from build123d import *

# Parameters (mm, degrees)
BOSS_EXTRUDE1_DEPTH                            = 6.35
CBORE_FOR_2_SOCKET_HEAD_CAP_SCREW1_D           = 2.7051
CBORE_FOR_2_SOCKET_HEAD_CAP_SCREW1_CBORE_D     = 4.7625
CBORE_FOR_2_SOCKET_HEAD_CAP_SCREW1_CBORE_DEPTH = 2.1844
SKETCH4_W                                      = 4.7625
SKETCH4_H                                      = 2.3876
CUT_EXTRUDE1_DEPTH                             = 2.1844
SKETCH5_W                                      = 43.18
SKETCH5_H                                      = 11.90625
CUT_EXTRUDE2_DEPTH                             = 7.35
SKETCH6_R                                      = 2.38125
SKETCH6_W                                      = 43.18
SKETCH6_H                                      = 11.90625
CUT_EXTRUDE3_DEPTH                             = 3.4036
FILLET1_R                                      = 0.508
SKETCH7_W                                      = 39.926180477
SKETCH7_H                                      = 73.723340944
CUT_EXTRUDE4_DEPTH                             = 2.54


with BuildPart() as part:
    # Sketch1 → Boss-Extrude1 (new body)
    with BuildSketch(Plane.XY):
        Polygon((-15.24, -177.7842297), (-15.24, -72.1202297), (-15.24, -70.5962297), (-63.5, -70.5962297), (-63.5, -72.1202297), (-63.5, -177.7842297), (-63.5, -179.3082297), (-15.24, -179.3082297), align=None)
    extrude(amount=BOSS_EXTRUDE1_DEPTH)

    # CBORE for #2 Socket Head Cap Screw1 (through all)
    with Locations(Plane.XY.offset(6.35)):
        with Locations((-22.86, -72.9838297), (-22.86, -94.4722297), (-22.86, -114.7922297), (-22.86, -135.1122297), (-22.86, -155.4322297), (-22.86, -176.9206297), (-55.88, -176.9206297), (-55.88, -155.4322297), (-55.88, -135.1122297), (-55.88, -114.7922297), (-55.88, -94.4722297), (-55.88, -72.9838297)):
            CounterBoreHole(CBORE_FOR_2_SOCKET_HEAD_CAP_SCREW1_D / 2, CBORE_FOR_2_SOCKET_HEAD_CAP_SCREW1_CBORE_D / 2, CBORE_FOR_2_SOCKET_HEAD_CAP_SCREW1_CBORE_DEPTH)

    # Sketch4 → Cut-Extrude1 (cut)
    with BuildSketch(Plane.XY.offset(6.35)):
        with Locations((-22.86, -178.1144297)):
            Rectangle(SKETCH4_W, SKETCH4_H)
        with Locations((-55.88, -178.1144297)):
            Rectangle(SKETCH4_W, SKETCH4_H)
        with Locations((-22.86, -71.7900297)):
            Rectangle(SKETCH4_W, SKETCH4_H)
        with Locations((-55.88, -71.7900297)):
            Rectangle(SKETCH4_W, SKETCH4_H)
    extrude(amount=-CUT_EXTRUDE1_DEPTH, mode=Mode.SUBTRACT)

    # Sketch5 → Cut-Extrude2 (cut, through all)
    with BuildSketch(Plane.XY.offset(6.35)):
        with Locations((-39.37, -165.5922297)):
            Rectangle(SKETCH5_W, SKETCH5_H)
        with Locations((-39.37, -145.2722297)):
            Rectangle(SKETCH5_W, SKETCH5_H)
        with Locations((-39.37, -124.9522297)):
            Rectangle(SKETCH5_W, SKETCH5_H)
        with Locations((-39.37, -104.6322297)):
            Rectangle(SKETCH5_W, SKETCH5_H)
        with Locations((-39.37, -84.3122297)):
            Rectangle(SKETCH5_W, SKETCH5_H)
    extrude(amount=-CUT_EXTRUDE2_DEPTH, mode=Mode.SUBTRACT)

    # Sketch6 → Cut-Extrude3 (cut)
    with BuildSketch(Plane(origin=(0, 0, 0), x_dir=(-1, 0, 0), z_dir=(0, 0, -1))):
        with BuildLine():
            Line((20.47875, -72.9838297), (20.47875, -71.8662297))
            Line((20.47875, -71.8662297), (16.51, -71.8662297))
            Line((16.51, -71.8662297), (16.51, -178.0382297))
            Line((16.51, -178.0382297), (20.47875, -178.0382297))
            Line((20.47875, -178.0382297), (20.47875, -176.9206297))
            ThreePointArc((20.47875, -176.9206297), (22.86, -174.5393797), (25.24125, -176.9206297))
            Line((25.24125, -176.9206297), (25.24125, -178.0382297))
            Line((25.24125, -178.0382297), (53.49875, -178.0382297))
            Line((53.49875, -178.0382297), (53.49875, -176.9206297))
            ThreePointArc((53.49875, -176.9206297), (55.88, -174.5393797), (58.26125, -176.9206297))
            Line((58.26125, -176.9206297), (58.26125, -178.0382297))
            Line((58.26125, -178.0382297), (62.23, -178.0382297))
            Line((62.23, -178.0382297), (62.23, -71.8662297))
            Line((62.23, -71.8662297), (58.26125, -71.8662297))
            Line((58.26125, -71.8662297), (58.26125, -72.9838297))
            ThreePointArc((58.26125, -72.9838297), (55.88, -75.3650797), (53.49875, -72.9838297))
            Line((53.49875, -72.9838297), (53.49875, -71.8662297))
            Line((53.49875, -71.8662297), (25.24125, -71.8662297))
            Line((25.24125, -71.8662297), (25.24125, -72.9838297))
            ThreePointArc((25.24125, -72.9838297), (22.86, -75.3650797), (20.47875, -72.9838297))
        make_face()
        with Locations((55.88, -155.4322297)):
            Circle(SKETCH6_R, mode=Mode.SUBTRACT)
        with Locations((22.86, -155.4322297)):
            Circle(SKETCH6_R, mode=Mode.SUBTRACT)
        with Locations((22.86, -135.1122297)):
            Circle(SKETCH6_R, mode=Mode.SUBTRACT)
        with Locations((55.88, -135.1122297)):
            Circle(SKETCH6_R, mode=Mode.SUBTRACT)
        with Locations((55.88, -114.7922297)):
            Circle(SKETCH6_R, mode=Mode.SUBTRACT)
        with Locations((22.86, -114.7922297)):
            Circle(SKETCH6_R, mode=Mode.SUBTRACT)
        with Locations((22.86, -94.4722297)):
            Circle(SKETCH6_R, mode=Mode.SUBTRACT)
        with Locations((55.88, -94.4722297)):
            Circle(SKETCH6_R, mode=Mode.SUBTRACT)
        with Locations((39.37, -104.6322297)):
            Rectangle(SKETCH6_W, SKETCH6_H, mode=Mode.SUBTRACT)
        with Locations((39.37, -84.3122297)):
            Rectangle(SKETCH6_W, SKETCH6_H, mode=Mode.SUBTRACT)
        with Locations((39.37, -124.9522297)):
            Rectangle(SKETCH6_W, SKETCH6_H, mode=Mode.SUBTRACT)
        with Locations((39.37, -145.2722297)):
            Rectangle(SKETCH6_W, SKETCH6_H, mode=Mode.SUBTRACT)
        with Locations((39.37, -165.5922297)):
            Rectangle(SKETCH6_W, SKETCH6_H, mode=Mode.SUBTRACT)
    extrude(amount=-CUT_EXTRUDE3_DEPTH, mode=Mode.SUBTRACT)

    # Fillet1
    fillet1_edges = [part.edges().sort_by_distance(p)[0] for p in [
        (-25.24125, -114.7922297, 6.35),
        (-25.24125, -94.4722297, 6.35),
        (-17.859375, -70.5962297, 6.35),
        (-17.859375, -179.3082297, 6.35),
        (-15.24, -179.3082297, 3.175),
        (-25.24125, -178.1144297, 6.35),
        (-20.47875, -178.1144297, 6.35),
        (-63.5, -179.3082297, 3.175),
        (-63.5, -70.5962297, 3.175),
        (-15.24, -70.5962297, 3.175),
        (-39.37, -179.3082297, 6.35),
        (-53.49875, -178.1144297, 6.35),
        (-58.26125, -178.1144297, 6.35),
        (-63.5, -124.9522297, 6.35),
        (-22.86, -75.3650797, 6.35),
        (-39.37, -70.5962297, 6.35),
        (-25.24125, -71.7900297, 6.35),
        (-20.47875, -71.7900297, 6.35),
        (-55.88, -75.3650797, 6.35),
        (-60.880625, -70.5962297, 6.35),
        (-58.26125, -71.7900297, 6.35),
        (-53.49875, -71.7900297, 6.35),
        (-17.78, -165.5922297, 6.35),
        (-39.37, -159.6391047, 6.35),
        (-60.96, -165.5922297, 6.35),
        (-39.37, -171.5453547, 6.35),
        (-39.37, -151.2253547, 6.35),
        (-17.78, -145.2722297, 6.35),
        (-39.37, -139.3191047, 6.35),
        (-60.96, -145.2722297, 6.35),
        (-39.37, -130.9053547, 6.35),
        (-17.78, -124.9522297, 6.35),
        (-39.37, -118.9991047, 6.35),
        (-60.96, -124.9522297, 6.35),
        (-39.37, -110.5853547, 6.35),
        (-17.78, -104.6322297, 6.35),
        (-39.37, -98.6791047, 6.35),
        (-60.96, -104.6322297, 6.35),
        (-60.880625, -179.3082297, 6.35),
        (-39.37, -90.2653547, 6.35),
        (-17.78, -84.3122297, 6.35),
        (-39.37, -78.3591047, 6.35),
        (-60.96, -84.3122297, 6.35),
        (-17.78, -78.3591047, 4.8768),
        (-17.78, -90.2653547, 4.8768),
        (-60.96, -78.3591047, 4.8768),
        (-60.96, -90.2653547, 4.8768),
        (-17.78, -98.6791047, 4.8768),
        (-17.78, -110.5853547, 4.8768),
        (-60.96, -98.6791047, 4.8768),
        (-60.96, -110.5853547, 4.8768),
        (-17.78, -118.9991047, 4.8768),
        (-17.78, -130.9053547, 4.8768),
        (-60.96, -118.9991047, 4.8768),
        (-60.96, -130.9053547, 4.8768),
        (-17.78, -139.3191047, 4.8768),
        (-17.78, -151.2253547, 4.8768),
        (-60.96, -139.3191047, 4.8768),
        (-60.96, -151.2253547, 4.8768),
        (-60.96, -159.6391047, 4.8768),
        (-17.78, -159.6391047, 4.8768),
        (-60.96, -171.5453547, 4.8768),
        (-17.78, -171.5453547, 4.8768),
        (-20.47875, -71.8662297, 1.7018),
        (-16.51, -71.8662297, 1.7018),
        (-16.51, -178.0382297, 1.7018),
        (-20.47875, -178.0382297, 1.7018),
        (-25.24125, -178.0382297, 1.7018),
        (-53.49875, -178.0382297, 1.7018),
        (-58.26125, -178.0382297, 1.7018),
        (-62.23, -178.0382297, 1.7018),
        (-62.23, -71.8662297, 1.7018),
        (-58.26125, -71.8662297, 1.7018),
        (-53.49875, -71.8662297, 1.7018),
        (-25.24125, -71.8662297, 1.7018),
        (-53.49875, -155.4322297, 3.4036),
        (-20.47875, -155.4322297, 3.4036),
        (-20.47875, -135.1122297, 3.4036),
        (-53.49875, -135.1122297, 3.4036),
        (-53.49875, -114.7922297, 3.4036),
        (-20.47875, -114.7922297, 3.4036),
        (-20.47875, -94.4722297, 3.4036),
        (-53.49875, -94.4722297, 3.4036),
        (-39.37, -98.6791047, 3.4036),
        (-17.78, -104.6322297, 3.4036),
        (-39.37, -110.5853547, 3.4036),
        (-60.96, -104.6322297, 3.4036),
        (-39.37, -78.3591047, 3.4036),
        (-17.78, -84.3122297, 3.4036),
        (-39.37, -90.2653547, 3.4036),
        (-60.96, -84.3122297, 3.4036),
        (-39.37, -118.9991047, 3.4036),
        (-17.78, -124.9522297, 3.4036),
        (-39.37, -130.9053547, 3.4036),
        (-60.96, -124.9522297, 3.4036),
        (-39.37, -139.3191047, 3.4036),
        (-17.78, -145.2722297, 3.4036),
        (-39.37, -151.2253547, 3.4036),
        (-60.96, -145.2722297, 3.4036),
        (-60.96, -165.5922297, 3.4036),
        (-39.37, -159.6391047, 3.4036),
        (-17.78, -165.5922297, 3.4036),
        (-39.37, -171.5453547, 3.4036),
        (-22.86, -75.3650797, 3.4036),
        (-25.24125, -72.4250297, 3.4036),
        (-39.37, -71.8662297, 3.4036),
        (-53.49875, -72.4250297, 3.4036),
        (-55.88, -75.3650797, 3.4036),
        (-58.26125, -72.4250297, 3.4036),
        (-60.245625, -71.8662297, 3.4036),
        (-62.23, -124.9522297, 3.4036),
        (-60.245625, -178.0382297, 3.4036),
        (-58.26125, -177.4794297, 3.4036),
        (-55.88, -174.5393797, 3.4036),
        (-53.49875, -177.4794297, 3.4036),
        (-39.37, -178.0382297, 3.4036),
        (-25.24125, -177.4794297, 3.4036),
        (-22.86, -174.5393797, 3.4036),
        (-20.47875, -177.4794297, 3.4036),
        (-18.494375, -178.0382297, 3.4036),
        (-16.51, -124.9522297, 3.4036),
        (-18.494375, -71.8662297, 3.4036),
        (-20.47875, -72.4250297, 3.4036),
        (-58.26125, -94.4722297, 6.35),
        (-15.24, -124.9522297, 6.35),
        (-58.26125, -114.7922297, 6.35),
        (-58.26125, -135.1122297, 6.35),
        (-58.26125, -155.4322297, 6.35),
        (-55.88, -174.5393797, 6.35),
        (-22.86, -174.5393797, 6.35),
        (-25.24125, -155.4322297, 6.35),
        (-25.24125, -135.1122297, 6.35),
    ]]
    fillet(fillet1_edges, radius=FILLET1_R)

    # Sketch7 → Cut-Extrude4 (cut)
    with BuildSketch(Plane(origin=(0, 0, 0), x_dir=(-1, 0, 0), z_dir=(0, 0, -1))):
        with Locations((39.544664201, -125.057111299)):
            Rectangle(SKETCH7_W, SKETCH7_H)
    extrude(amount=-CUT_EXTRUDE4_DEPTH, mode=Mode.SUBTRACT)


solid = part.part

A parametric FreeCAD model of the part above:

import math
import FreeCAD as App
import Part
import Sketcher

V = App.Vector
Q = App.Units.Quantity


def edges_at(feature, points):
    """Names of the edges that pass closest to the given points."""
    edges = feature.Shape.Edges
    near = lambda p: min(range(len(edges)), key=lambda i: edges[i].distToShape(Part.Vertex(*p))[0])
    return sorted({f"Edge{near(p) + 1}" for p in points})

doc = App.newDocument("Part")
body = doc.addObject("PartDesign::Body", "Body")

# Sketch on XY plane
sketch1 = body.newObject("Sketcher::SketchObject", "Sketch")
sketch1.AttachmentSupport = (doc.getObject("XY_Plane"), [""])
sketch1.MapMode = "FlatFace"
sketch1.addGeometry([
    Part.LineSegment(V(-15, -71, 0), V(-64, -71, 0)),
    Part.LineSegment(V(-64, -71, 0), V(-64, -179, 0)),
    Part.LineSegment(V(-64, -179, 0), V(-15, -179, 0)),
    Part.LineSegment(V(-15, -179, 0), V(-15, -71, 0)),
], False)
sketch1.addConstraint([
    Sketcher.Constraint("Coincident", 0, 2, 1, 1),
    Sketcher.Constraint("Coincident", 1, 2, 2, 1),
    Sketcher.Constraint("Coincident", 2, 2, 3, 1),
    Sketcher.Constraint("Coincident", 3, 2, 0, 1),
    Sketcher.Constraint("Horizontal", 0),
    Sketcher.Constraint("Vertical", 1),
    Sketcher.Constraint("Horizontal", 2),
    Sketcher.Constraint("Vertical", 3),
    Sketcher.Constraint("DistanceX", 0, 2, 0, 1, Q("1.9 in")),
    Sketcher.Constraint("DistanceY", 1, 2, 1, 1, Q("4.28 in")),
    Sketcher.Constraint("DistanceX", 0, 2, -1, 1, Q("2.5 in")),
    Sketcher.Constraint("DistanceY", 0, 2, -1, 1, 70.59623),
])
pad1 = body.newObject("PartDesign::Pad", "Pad")
pad1.Profile = sketch1
pad1.Length = Q("0.25 in")

# Sketch on XY plane
sketch2 = body.newObject("Sketcher::SketchObject", "Sketch001")
sketch2.AttachmentSupport = (doc.getObject("XY_Plane"), [""])
sketch2.MapMode = "FlatFace"
sketch2.AttachmentOffset = App.Placement(V(0, 0, 0.25 * 25.4), App.Rotation())
sketch2.addGeometry([
    Part.Circle(V(-22.9, -73, 0), V(0, 0, 1), 1.4),  # 0
    Part.Circle(V(-22.9, -94.5, 0), V(0, 0, 1), 1.4),  # 1
    Part.Circle(V(-22.9, -114.8, 0), V(0, 0, 1), 1.4),  # 2
    Part.Circle(V(-22.9, -135.1, 0), V(0, 0, 1), 1.4),  # 3
    Part.Circle(V(-22.9, -155.4, 0), V(0, 0, 1), 1.4),  # 4
    Part.Circle(V(-22.9, -176.9, 0), V(0, 0, 1), 1.4),  # 5
    Part.Circle(V(-55.9, -176.9, 0), V(0, 0, 1), 1.4),  # 6
    Part.Circle(V(-55.9, -155.4, 0), V(0, 0, 1), 1.4),  # 7
    Part.Circle(V(-55.9, -135.1, 0), V(0, 0, 1), 1.4),  # 8
    Part.Circle(V(-55.9, -114.8, 0), V(0, 0, 1), 1.4),  # 9
    Part.Circle(V(-55.9, -94.5, 0), V(0, 0, 1), 1.4),  # 10
    Part.Circle(V(-55.9, -73, 0), V(0, 0, 1), 1.4),  # 11
], False)
sketch2.addConstraint([
    Sketcher.Constraint("Equal", 0, 1),
    Sketcher.Constraint("Equal", 1, 2),
    Sketcher.Constraint("Equal", 2, 3),
    Sketcher.Constraint("Equal", 3, 4),
    Sketcher.Constraint("Equal", 4, 5),
    Sketcher.Constraint("Equal", 5, 6),
    Sketcher.Constraint("Equal", 6, 7),
    Sketcher.Constraint("Equal", 7, 8),
    Sketcher.Constraint("Equal", 8, 9),
    Sketcher.Constraint("Equal", 9, 10),
    Sketcher.Constraint("Equal", 10, 11),
    Sketcher.Constraint("Horizontal", 5, 3, 6, 3),
    Sketcher.Constraint("Horizontal", 4, 3, 7, 3),
    Sketcher.Constraint("Horizontal", 3, 3, 8, 3),
    Sketcher.Constraint("Horizontal", 2, 3, 9, 3),
    Sketcher.Constraint("Horizontal", 1, 3, 10, 3),
    Sketcher.Constraint("Horizontal", 0, 3, 11, 3),
    Sketcher.Constraint("Vertical", 0, 3, 1, 3),
    Sketcher.Constraint("Vertical", 1, 3, 2, 3),
    Sketcher.Constraint("Vertical", 2, 3, 3, 3),
    Sketcher.Constraint("Vertical", 3, 3, 4, 3),
    Sketcher.Constraint("Vertical", 4, 3, 5, 3),
    Sketcher.Constraint("Vertical", 6, 3, 7, 3),
    Sketcher.Constraint("Vertical", 7, 3, 8, 3),
    Sketcher.Constraint("Vertical", 8, 3, 9, 3),
    Sketcher.Constraint("Vertical", 9, 3, 10, 3),
    Sketcher.Constraint("Vertical", 10, 3, 11, 3),
    Sketcher.Constraint("Diameter", 0, Q("0.1065 in")),
    Sketcher.Constraint("DistanceX", 0, 3, -1, 1, Q("0.9 in")),
    Sketcher.Constraint("DistanceX", 6, 3, -1, 1, Q("2.2 in")),
    Sketcher.Constraint("DistanceY", 2, 3, 1, 3, Q("0.8 in")),
    Sketcher.Constraint("DistanceY", 3, 3, 2, 3, Q("0.8 in")),
    Sketcher.Constraint("DistanceY", 4, 3, 3, 3, Q("0.8 in")),
    Sketcher.Constraint("DistanceY", 1, 3, 0, 3, Q("0.846 in")),
    Sketcher.Constraint("DistanceY", 5, 3, 4, 3, Q("0.846 in")),
    Sketcher.Constraint("DistanceY", 0, 3, -1, 1, 72.98383),
])
doc.recompute()
hole = body.newObject("PartDesign::Hole", "Hole")
hole.Profile = sketch2
hole.ThreadType = "None"
hole.Diameter = Q("0.1065 in")
hole.DepthType = "ThroughAll"
hole.HoleCutType = "Counterbore"
hole.HoleCutDiameter = Q("0.1875 in")
hole.HoleCutDepth = Q("0.086 in")

# Sketch on XY plane
sketch3 = body.newObject("Sketcher::SketchObject", "Sketch002")
sketch3.AttachmentSupport = (doc.getObject("XY_Plane"), [""])
sketch3.MapMode = "FlatFace"
sketch3.AttachmentOffset = App.Placement(V(0, 0, 0.25 * 25.4), App.Rotation())
sketch3.addGeometry([
    Part.LineSegment(V(-25.2, -176.9, 0), V(-25.2, -179.3, 0)),  # 0
    Part.LineSegment(V(-25.2, -179.3, 0), V(-20.5, -179.3, 0)),  # 1
    Part.LineSegment(V(-20.5, -179.3, 0), V(-20.5, -176.9, 0)),  # 2
    Part.LineSegment(V(-20.5, -176.9, 0), V(-25.2, -176.9, 0)),  # 3
    Part.LineSegment(V(-58.3, -176.9, 0), V(-58.3, -179.3, 0)),  # 4
    Part.LineSegment(V(-58.3, -179.3, 0), V(-53.5, -179.3, 0)),  # 5
    Part.LineSegment(V(-53.5, -179.3, 0), V(-53.5, -176.9, 0)),  # 6
    Part.LineSegment(V(-53.5, -176.9, 0), V(-58.3, -176.9, 0)),  # 7
    Part.LineSegment(V(-25.2, -70.6, 0), V(-25.2, -73, 0)),  # 8
    Part.LineSegment(V(-25.2, -73, 0), V(-20.5, -73, 0)),  # 9
    Part.LineSegment(V(-20.5, -73, 0), V(-20.5, -70.6, 0)),  # 10
    Part.LineSegment(V(-20.5, -70.6, 0), V(-25.2, -70.6, 0)),  # 11
    Part.LineSegment(V(-58.3, -70.6, 0), V(-58.3, -73, 0)),  # 12
    Part.LineSegment(V(-58.3, -73, 0), V(-53.5, -73, 0)),  # 13
    Part.LineSegment(V(-53.5, -73, 0), V(-53.5, -70.6, 0)),  # 14
    Part.LineSegment(V(-53.5, -70.6, 0), V(-58.3, -70.6, 0)),  # 15
], False)
sketch3.addConstraint([
    Sketcher.Constraint("Coincident", 0, 2, 1, 1),
    Sketcher.Constraint("Coincident", 1, 2, 2, 1),
    Sketcher.Constraint("Coincident", 2, 2, 3, 1),
    Sketcher.Constraint("Coincident", 3, 2, 0, 1),
    Sketcher.Constraint("Coincident", 4, 2, 5, 1),
    Sketcher.Constraint("Coincident", 5, 2, 6, 1),
    Sketcher.Constraint("Coincident", 6, 2, 7, 1),
    Sketcher.Constraint("Coincident", 7, 2, 4, 1),
    Sketcher.Constraint("Coincident", 8, 2, 9, 1),
    Sketcher.Constraint("Coincident", 9, 2, 10, 1),
    Sketcher.Constraint("Coincident", 10, 2, 11, 1),
    Sketcher.Constraint("Coincident", 11, 2, 8, 1),
    Sketcher.Constraint("Coincident", 12, 2, 13, 1),
    Sketcher.Constraint("Coincident", 13, 2, 14, 1),
    Sketcher.Constraint("Coincident", 14, 2, 15, 1),
    Sketcher.Constraint("Coincident", 15, 2, 12, 1),
    Sketcher.Constraint("Vertical", 0),
    Sketcher.Constraint("Horizontal", 1),
    Sketcher.Constraint("Vertical", 2),
    Sketcher.Constraint("Horizontal", 3),
    Sketcher.Constraint("Vertical", 4),
    Sketcher.Constraint("Horizontal", 5),
    Sketcher.Constraint("Vertical", 6),
    Sketcher.Constraint("Horizontal", 7),
    Sketcher.Constraint("Vertical", 8),
    Sketcher.Constraint("Horizontal", 9),
    Sketcher.Constraint("Vertical", 10),
    Sketcher.Constraint("Horizontal", 11),
    Sketcher.Constraint("Vertical", 12),
    Sketcher.Constraint("Horizontal", 13),
    Sketcher.Constraint("Vertical", 14),
    Sketcher.Constraint("Horizontal", 15),
    Sketcher.Constraint("Horizontal", 1, 2, 4, 2),
    Sketcher.Constraint("Horizontal", 3, 2, 6, 2),
    Sketcher.Constraint("Horizontal", 9, 2, 12, 2),
    Sketcher.Constraint("Horizontal", 11, 2, 14, 2),
    Sketcher.Constraint("Vertical", 3, 2, 8, 2),
    Sketcher.Constraint("Vertical", 2, 2, 9, 2),
    Sketcher.Constraint("Vertical", 7, 2, 12, 2),
    Sketcher.Constraint("Vertical", 6, 2, 13, 2),
    Sketcher.Constraint("Equal", 3, 5),
    Sketcher.Constraint("Equal", 6, 8),
    Sketcher.Constraint("DistanceX", 4, 2, 0, 2, Q("1.3 in")),
    Sketcher.Constraint("DistanceX", 1, 1, 1, 2, Q("0.1875 in")),
    Sketcher.Constraint("DistanceY", 0, 2, 0, 1, Q("0.094 in")),
    Sketcher.Constraint("DistanceY", 1, 2, 10, 2, Q("4.28 in")),
    Sketcher.Constraint("DistanceX", 0, 2, -1, 1, 25.24125),
    Sketcher.Constraint("DistanceY", 0, 2, -1, 1, 179.30823),
])
pocket1 = body.newObject("PartDesign::Pocket", "Pocket")
pocket1.Profile = sketch3
pocket1.Length = Q("0.086 in")

# Sketch on XY plane
sketch4 = body.newObject("Sketcher::SketchObject", "Sketch003")
sketch4.AttachmentSupport = (doc.getObject("XY_Plane"), [""])
sketch4.MapMode = "FlatFace"
sketch4.AttachmentOffset = App.Placement(V(0, 0, 0.25 * 25.4), App.Rotation())
sketch4.addGeometry([
    Part.LineSegment(V(-61, -160, 0), V(-61, -172, 0)),  # 0
    Part.LineSegment(V(-61, -172, 0), V(-18, -172, 0)),  # 1
    Part.LineSegment(V(-18, -172, 0), V(-18, -160, 0)),  # 2
    Part.LineSegment(V(-18, -160, 0), V(-61, -160, 0)),  # 3
    Part.LineSegment(V(-61, -139, 0), V(-61, -151, 0)),  # 4
    Part.LineSegment(V(-61, -151, 0), V(-18, -151, 0)),  # 5
    Part.LineSegment(V(-18, -151, 0), V(-18, -139, 0)),  # 6
    Part.LineSegment(V(-18, -139, 0), V(-61, -139, 0)),  # 7
    Part.LineSegment(V(-61, -119, 0), V(-61, -131, 0)),  # 8
    Part.LineSegment(V(-61, -131, 0), V(-18, -131, 0)),  # 9
    Part.LineSegment(V(-18, -131, 0), V(-18, -119, 0)),  # 10
    Part.LineSegment(V(-18, -119, 0), V(-61, -119, 0)),  # 11
    Part.LineSegment(V(-61, -99, 0), V(-61, -111, 0)),  # 12
    Part.LineSegment(V(-61, -111, 0), V(-18, -111, 0)),  # 13
    Part.LineSegment(V(-18, -111, 0), V(-18, -99, 0)),  # 14
    Part.LineSegment(V(-18, -99, 0), V(-61, -99, 0)),  # 15
    Part.LineSegment(V(-61, -78, 0), V(-61, -90, 0)),  # 16
    Part.LineSegment(V(-61, -90, 0), V(-18, -90, 0)),  # 17
    Part.LineSegment(V(-18, -90, 0), V(-18, -78, 0)),  # 18
    Part.LineSegment(V(-18, -78, 0), V(-61, -78, 0)),  # 19
], False)
sketch4.addConstraint([
    Sketcher.Constraint("Coincident", 0, 2, 1, 1),
    Sketcher.Constraint("Coincident", 1, 2, 2, 1),
    Sketcher.Constraint("Coincident", 2, 2, 3, 1),
    Sketcher.Constraint("Coincident", 3, 2, 0, 1),
    Sketcher.Constraint("Coincident", 4, 2, 5, 1),
    Sketcher.Constraint("Coincident", 5, 2, 6, 1),
    Sketcher.Constraint("Coincident", 6, 2, 7, 1),
    Sketcher.Constraint("Coincident", 7, 2, 4, 1),
    Sketcher.Constraint("Coincident", 8, 2, 9, 1),
    Sketcher.Constraint("Coincident", 9, 2, 10, 1),
    Sketcher.Constraint("Coincident", 10, 2, 11, 1),
    Sketcher.Constraint("Coincident", 11, 2, 8, 1),
    Sketcher.Constraint("Coincident", 12, 2, 13, 1),
    Sketcher.Constraint("Coincident", 13, 2, 14, 1),
    Sketcher.Constraint("Coincident", 14, 2, 15, 1),
    Sketcher.Constraint("Coincident", 15, 2, 12, 1),
    Sketcher.Constraint("Coincident", 16, 2, 17, 1),
    Sketcher.Constraint("Coincident", 17, 2, 18, 1),
    Sketcher.Constraint("Coincident", 18, 2, 19, 1),
    Sketcher.Constraint("Coincident", 19, 2, 16, 1),
    Sketcher.Constraint("Vertical", 0),
    Sketcher.Constraint("Horizontal", 1),
    Sketcher.Constraint("Vertical", 2),
    Sketcher.Constraint("Horizontal", 3),
    Sketcher.Constraint("Vertical", 4),
    Sketcher.Constraint("Horizontal", 5),
    Sketcher.Constraint("Vertical", 6),
    Sketcher.Constraint("Horizontal", 7),
    Sketcher.Constraint("Vertical", 8),
    Sketcher.Constraint("Horizontal", 9),
    Sketcher.Constraint("Vertical", 10),
    Sketcher.Constraint("Horizontal", 11),
    Sketcher.Constraint("Vertical", 12),
    Sketcher.Constraint("Horizontal", 13),
    Sketcher.Constraint("Vertical", 14),
    Sketcher.Constraint("Horizontal", 15),
    Sketcher.Constraint("Vertical", 16),
    Sketcher.Constraint("Horizontal", 17),
    Sketcher.Constraint("Vertical", 18),
    Sketcher.Constraint("Horizontal", 19),
    Sketcher.Constraint("Vertical", 3, 2, 4, 2),
    Sketcher.Constraint("Vertical", 2, 2, 5, 2),
    Sketcher.Constraint("Vertical", 7, 2, 8, 2),
    Sketcher.Constraint("Vertical", 6, 2, 9, 2),
    Sketcher.Constraint("Vertical", 11, 2, 12, 2),
    Sketcher.Constraint("Vertical", 10, 2, 13, 2),
    Sketcher.Constraint("Vertical", 15, 2, 16, 2),
    Sketcher.Constraint("Vertical", 14, 2, 17, 2),
    Sketcher.Constraint("Equal", 2, 4),
    Sketcher.Constraint("Equal", 6, 8),
    Sketcher.Constraint("Equal", 10, 12),
    Sketcher.Constraint("Equal", 14, 16),
    Sketcher.Constraint("DistanceX", 1, 1, 1, 2, Q("1.7 in")),
    Sketcher.Constraint("DistanceX", 0, 2, -1, 1, Q("2.4 in")),
    Sketcher.Constraint("DistanceY", 0, 2, 4, 2, Q("0.8 in")),
    Sketcher.Constraint("DistanceY", 4, 2, 8, 2, Q("0.8 in")),
    Sketcher.Constraint("DistanceY", 8, 2, 12, 2, Q("0.8 in")),
    Sketcher.Constraint("DistanceY", 12, 2, 16, 2, Q("0.8 in")),
    Sketcher.Constraint("DistanceY", 0, 2, 0, 1, Q("0.46875 in")),
    Sketcher.Constraint("DistanceY", 0, 2, -1, 1, 171.545355),
])
pocket2 = body.newObject("PartDesign::Pocket", "Pocket001")
pocket2.Profile = sketch4
pocket2.Type = "ThroughAll"

# Sketch on XY plane
sketch5 = body.newObject("Sketcher::SketchObject", "Sketch004")
sketch5.AttachmentSupport = (doc.getObject("XY_Plane"), [""])
sketch5.MapMode = "FlatFace"
sketch5.addGeometry([
    Part.LineSegment(V(-20.5, -73, 0), V(-20.5, -71.9, 0)),  # 0
    Part.LineSegment(V(-20.5, -71.9, 0), V(-16.5, -71.9, 0)),  # 1
    Part.LineSegment(V(-16.5, -71.9, 0), V(-16.5, -178, 0)),  # 2
    Part.LineSegment(V(-16.5, -178, 0), V(-20.5, -178, 0)),  # 3
    Part.LineSegment(V(-20.5, -178, 0), V(-20.5, -176.9, 0)),  # 4
    Part.ArcOfCircle(Part.Circle(V(-22.9, -176.9, 0), V(0, 0, 1), 2.4), math.radians(0), math.radians(180)),  # 5
    Part.LineSegment(V(-25.2, -176.9, 0), V(-25.2, -178, 0)),  # 6
    Part.LineSegment(V(-25.2, -178, 0), V(-53.5, -178, 0)),  # 7
    Part.LineSegment(V(-53.5, -178, 0), V(-53.5, -176.9, 0)),  # 8
    Part.ArcOfCircle(Part.Circle(V(-55.9, -176.9, 0), V(0, 0, 1), 2.4), math.radians(0), math.radians(180)),  # 9
    Part.LineSegment(V(-58.3, -176.9, 0), V(-58.3, -178, 0)),  # 10
    Part.LineSegment(V(-58.3, -178, 0), V(-62.2, -178, 0)),  # 11
    Part.LineSegment(V(-62.2, -178, 0), V(-62.2, -71.9, 0)),  # 12
    Part.LineSegment(V(-62.2, -71.9, 0), V(-58.3, -71.9, 0)),  # 13
    Part.LineSegment(V(-58.3, -71.9, 0), V(-58.3, -73, 0)),  # 14
    Part.ArcOfCircle(Part.Circle(V(-55.9, -73, 0), V(0, 0, 1), 2.4), math.radians(180), math.radians(360)),  # 15
    Part.LineSegment(V(-53.5, -73, 0), V(-53.5, -71.9, 0)),  # 16
    Part.LineSegment(V(-53.5, -71.9, 0), V(-25.2, -71.9, 0)),  # 17
    Part.LineSegment(V(-25.2, -71.9, 0), V(-25.2, -73, 0)),  # 18
    Part.ArcOfCircle(Part.Circle(V(-22.9, -73, 0), V(0, 0, 1), 2.4), math.radians(180), math.radians(360)),  # 19
    Part.Circle(V(-22.9, -155.4, 0), V(0, 0, 1), 2.4),  # 20
    Part.Circle(V(-22.9, -135.1, 0), V(0, 0, 1), 2.4),  # 21
    Part.LineSegment(V(-61, -171.5, 0), V(-17.8, -171.5, 0)),  # 22
    Part.LineSegment(V(-17.8, -171.5, 0), V(-17.8, -159.6, 0)),  # 23
    Part.LineSegment(V(-17.8, -159.6, 0), V(-61, -159.6, 0)),  # 24
    Part.LineSegment(V(-61, -159.6, 0), V(-61, -171.5, 0)),  # 25
    Part.Circle(V(-55.9, -155.4, 0), V(0, 0, 1), 2.4),  # 26
    Part.LineSegment(V(-61, -151.2, 0), V(-17.8, -151.2, 0)),  # 27
    Part.LineSegment(V(-17.8, -151.2, 0), V(-17.8, -139.3, 0)),  # 28
    Part.LineSegment(V(-17.8, -139.3, 0), V(-61, -139.3, 0)),  # 29
    Part.LineSegment(V(-61, -139.3, 0), V(-61, -151.2, 0)),  # 30
    Part.LineSegment(V(-61, -130.9, 0), V(-17.8, -130.9, 0)),  # 31
    Part.LineSegment(V(-17.8, -130.9, 0), V(-17.8, -119, 0)),  # 32
    Part.LineSegment(V(-17.8, -119, 0), V(-61, -119, 0)),  # 33
    Part.LineSegment(V(-61, -119, 0), V(-61, -130.9, 0)),  # 34
    Part.Circle(V(-55.9, -135.1, 0), V(0, 0, 1), 2.4),  # 35
    Part.Circle(V(-22.9, -114.8, 0), V(0, 0, 1), 2.4),  # 36
    Part.Circle(V(-22.9, -94.5, 0), V(0, 0, 1), 2.4),  # 37
    Part.LineSegment(V(-61, -110.6, 0), V(-17.8, -110.6, 0)),  # 38
    Part.LineSegment(V(-17.8, -110.6, 0), V(-17.8, -98.7, 0)),  # 39
    Part.LineSegment(V(-17.8, -98.7, 0), V(-61, -98.7, 0)),  # 40
    Part.LineSegment(V(-61, -98.7, 0), V(-61, -110.6, 0)),  # 41
    Part.Circle(V(-55.9, -114.8, 0), V(0, 0, 1), 2.4),  # 42
    Part.LineSegment(V(-61, -90.3, 0), V(-17.8, -90.3, 0)),  # 43
    Part.LineSegment(V(-17.8, -90.3, 0), V(-17.8, -78.4, 0)),  # 44
    Part.LineSegment(V(-17.8, -78.4, 0), V(-61, -78.4, 0)),  # 45
    Part.LineSegment(V(-61, -78.4, 0), V(-61, -90.3, 0)),  # 46
    Part.Circle(V(-55.9, -94.5, 0), V(0, 0, 1), 2.4),  # 47
], False)
sketch5.addConstraint([
    Sketcher.Constraint("Coincident", 0, 2, 1, 1),
    Sketcher.Constraint("Coincident", 1, 2, 2, 1),
    Sketcher.Constraint("Coincident", 2, 2, 3, 1),
    Sketcher.Constraint("Coincident", 3, 2, 4, 1),
    Sketcher.Constraint("Tangent", 4, 2, 5, 1),
    Sketcher.Constraint("Tangent", 5, 2, 6, 1),
    Sketcher.Constraint("Coincident", 6, 2, 7, 1),
    Sketcher.Constraint("Coincident", 7, 2, 8, 1),
    Sketcher.Constraint("Tangent", 8, 2, 9, 1),
    Sketcher.Constraint("Tangent", 9, 2, 10, 1),
    Sketcher.Constraint("Coincident", 10, 2, 11, 1),
    Sketcher.Constraint("Coincident", 11, 2, 12, 1),
    Sketcher.Constraint("Coincident", 12, 2, 13, 1),
    Sketcher.Constraint("Coincident", 13, 2, 14, 1),
    Sketcher.Constraint("Tangent", 14, 2, 15, 1),
    Sketcher.Constraint("Tangent", 15, 2, 16, 1),
    Sketcher.Constraint("Coincident", 16, 2, 17, 1),
    Sketcher.Constraint("Coincident", 17, 2, 18, 1),
    Sketcher.Constraint("Tangent", 18, 2, 19, 1),
    Sketcher.Constraint("Tangent", 19, 2, 0, 1),
    Sketcher.Constraint("Coincident", 22, 2, 23, 1),
    Sketcher.Constraint("Coincident", 23, 2, 24, 1),
    Sketcher.Constraint("Coincident", 24, 2, 25, 1),
    Sketcher.Constraint("Coincident", 25, 2, 22, 1),
    Sketcher.Constraint("Coincident", 27, 2, 28, 1),
    Sketcher.Constraint("Coincident", 28, 2, 29, 1),
    Sketcher.Constraint("Coincident", 29, 2, 30, 1),
    Sketcher.Constraint("Coincident", 30, 2, 27, 1),
    Sketcher.Constraint("Coincident", 31, 2, 32, 1),
    Sketcher.Constraint("Coincident", 32, 2, 33, 1),
    Sketcher.Constraint("Coincident", 33, 2, 34, 1),
    Sketcher.Constraint("Coincident", 34, 2, 31, 1),
    Sketcher.Constraint("Coincident", 38, 2, 39, 1),
    Sketcher.Constraint("Coincident", 39, 2, 40, 1),
    Sketcher.Constraint("Coincident", 40, 2, 41, 1),
    Sketcher.Constraint("Coincident", 41, 2, 38, 1),
    Sketcher.Constraint("Coincident", 43, 2, 44, 1),
    Sketcher.Constraint("Coincident", 44, 2, 45, 1),
    Sketcher.Constraint("Coincident", 45, 2, 46, 1),
    Sketcher.Constraint("Coincident", 46, 2, 43, 1),
    Sketcher.Constraint("Vertical", 0),
    Sketcher.Constraint("Horizontal", 1),
    Sketcher.Constraint("Vertical", 2),
    Sketcher.Constraint("Horizontal", 3),
    Sketcher.Constraint("Vertical", 4),
    Sketcher.Constraint("Vertical", 6),
    Sketcher.Constraint("Horizontal", 7),
    Sketcher.Constraint("Vertical", 8),
    Sketcher.Constraint("Vertical", 10),
    Sketcher.Constraint("Horizontal", 11),
    Sketcher.Constraint("Vertical", 12),
    Sketcher.Constraint("Horizontal", 13),
    Sketcher.Constraint("Vertical", 14),
    Sketcher.Constraint("Vertical", 16),
    Sketcher.Constraint("Horizontal", 17),
    Sketcher.Constraint("Vertical", 18),
    Sketcher.Constraint("Horizontal", 22),
    Sketcher.Constraint("Vertical", 23),
    Sketcher.Constraint("Horizontal", 24),
    Sketcher.Constraint("Vertical", 25),
    Sketcher.Constraint("Horizontal", 27),
    Sketcher.Constraint("Vertical", 28),
    Sketcher.Constraint("Horizontal", 29),
    Sketcher.Constraint("Vertical", 30),
    Sketcher.Constraint("Horizontal", 31),
    Sketcher.Constraint("Vertical", 32),
    Sketcher.Constraint("Horizontal", 33),
    Sketcher.Constraint("Vertical", 34),
    Sketcher.Constraint("Horizontal", 38),
    Sketcher.Constraint("Vertical", 39),
    Sketcher.Constraint("Horizontal", 40),
    Sketcher.Constraint("Vertical", 41),
    Sketcher.Constraint("Horizontal", 43),
    Sketcher.Constraint("Vertical", 44),
    Sketcher.Constraint("Horizontal", 45),
    Sketcher.Constraint("Vertical", 46),
    Sketcher.Constraint("Equal", 5, 9),
    Sketcher.Constraint("Equal", 9, 15),
    Sketcher.Constraint("Equal", 15, 19),
    Sketcher.Constraint("Equal", 19, 20),
    Sketcher.Constraint("Equal", 20, 21),
    Sketcher.Constraint("Equal", 21, 26),
    Sketcher.Constraint("Equal", 26, 35),
    Sketcher.Constraint("Equal", 35, 36),
    Sketcher.Constraint("Equal", 36, 37),
    Sketcher.Constraint("Equal", 37, 42),
    Sketcher.Constraint("Equal", 42, 47),
    Sketcher.Constraint("Horizontal", 5, 3, 9, 3),
    Sketcher.Constraint("Horizontal", 15, 3, 19, 3),
    Sketcher.Constraint("Horizontal", 20, 3, 26, 3),
    Sketcher.Constraint("Horizontal", 21, 3, 35, 3),
    Sketcher.Constraint("Horizontal", 36, 3, 42, 3),
    Sketcher.Constraint("Horizontal", 37, 3, 47, 3),
    Sketcher.Constraint("Horizontal", 3, 2, 6, 2),
    Sketcher.Constraint("Horizontal", 7, 2, 10, 2),
    Sketcher.Constraint("Horizontal", 1, 2, 12, 2),
    Sketcher.Constraint("Horizontal", 13, 2, 16, 2),
    Sketcher.Constraint("Vertical", 9, 3, 15, 3),
    Sketcher.Constraint("Vertical", 5, 3, 19, 3),
    Sketcher.Constraint("Vertical", 19, 3, 20, 3),
    Sketcher.Constraint("Vertical", 20, 3, 21, 3),
    Sketcher.Constraint("Vertical", 15, 3, 26, 3),
    Sketcher.Constraint("Vertical", 26, 3, 35, 3),
    Sketcher.Constraint("Vertical", 21, 3, 36, 3),
    Sketcher.Constraint("Vertical", 36, 3, 37, 3),
    Sketcher.Constraint("Vertical", 35, 3, 42, 3),
    Sketcher.Constraint("Vertical", 42, 3, 47, 3),
    Sketcher.Constraint("Vertical", 23, 2, 27, 2),
    Sketcher.Constraint("Vertical", 25, 2, 29, 2),
    Sketcher.Constraint("Vertical", 28, 2, 31, 2),
    Sketcher.Constraint("Vertical", 30, 2, 33, 2),
    Sketcher.Constraint("Vertical", 32, 2, 38, 2),
    Sketcher.Constraint("Vertical", 34, 2, 40, 2),
    Sketcher.Constraint("Vertical", 39, 2, 43, 2),
    Sketcher.Constraint("Vertical", 41, 2, 45, 2),
    Sketcher.Constraint("Equal", 3, 11),
    Sketcher.Constraint("Equal", 0, 4),
    Sketcher.Constraint("Equal", 25, 28),
    Sketcher.Constraint("Equal", 30, 32),
    Sketcher.Constraint("Equal", 34, 39),
    Sketcher.Constraint("Equal", 41, 44),
    Sketcher.Constraint("Diameter", 20, Q("0.1875 in")),
    Sketcher.Constraint("DistanceX", 22, 1, 22, 2, Q("1.7 in")),
    Sketcher.Constraint("DistanceY", 2, 2, 2, 1, Q("4.18 in")),
    Sketcher.Constraint("DistanceX", 5, 3, -1, 1, Q("0.9 in")),
    Sketcher.Constraint("DistanceX", 9, 3, -1, 1, Q("2.2 in")),
    Sketcher.Constraint("DistanceX", 22, 2, -1, 1, Q("0.7 in")),
    Sketcher.Constraint("DistanceY", 20, 3, 21, 3, Q("0.8 in")),
    Sketcher.Constraint("DistanceY", 21, 3, 36, 3, Q("0.8 in")),
    Sketcher.Constraint("DistanceY", 36, 3, 37, 3, Q("0.8 in")),
    Sketcher.Constraint("DistanceY", 22, 2, 27, 2, Q("0.8 in")),
    Sketcher.Constraint("DistanceY", 27, 2, 31, 2, Q("0.8 in")),
    Sketcher.Constraint("DistanceY", 31, 2, 38, 2, Q("0.8 in")),
    Sketcher.Constraint("DistanceX", 1, 1, 1, 2, Q("0.15625 in")),
    Sketcher.Constraint("DistanceY", 0, 1, 0, 2, Q("0.044 in")),
    Sketcher.Constraint("DistanceY", 23, 1, 23, 2, Q("0.46875 in")),
    Sketcher.Constraint("DistanceY", 37, 3, 0, 2, Q("0.89 in")),
    Sketcher.Constraint("DistanceY", 5, 3, -1, 1, 176.92063),
    Sketcher.Constraint("DistanceY", 39, 2, 43, 2, 8.41375),
    Sketcher.Constraint("DistanceY", 22, 2, -1, 1, 171.545355),
])
pocket3 = body.newObject("PartDesign::Pocket", "Pocket002")
pocket3.Profile = sketch5
pocket3.Length = Q("0.134 in")
pocket3.Reversed = True
doc.recompute()

fillet = body.newObject("PartDesign::Fillet", "Fillet")
fillet.Base = (pocket3, edges_at(pocket3, [
    (-25.241, -114.792, 6.35),
    (-25.241, -94.472, 6.35),
    (-17.859, -70.596, 6.35),
    (-17.859, -179.308, 6.35),
    (-15.24, -179.308, 3.175),
    (-25.241, -178.114, 6.35),
    (-20.479, -178.114, 6.35),
    (-63.5, -179.308, 3.175),
    (-63.5, -70.596, 3.175),
    (-15.24, -70.596, 3.175),
    (-39.37, -179.308, 6.35),
    (-53.499, -178.114, 6.35),
    (-58.261, -178.114, 6.35),
    (-63.5, -124.952, 6.35),
    (-22.86, -75.365, 6.35),
    (-39.37, -70.596, 6.35),
    (-25.241, -71.79, 6.35),
    (-20.479, -71.79, 6.35),
    (-55.88, -75.365, 6.35),
    (-60.881, -70.596, 6.35),
    (-58.261, -71.79, 6.35),
    (-53.499, -71.79, 6.35),
    (-17.78, -165.592, 6.35),
    (-39.37, -159.639, 6.35),
    (-60.96, -165.592, 6.35),
    (-39.37, -171.545, 6.35),
    (-39.37, -151.225, 6.35),
    (-17.78, -145.272, 6.35),
    (-39.37, -139.319, 6.35),
    (-60.96, -145.272, 6.35),
    (-39.37, -130.905, 6.35),
    (-17.78, -124.952, 6.35),
    (-39.37, -118.999, 6.35),
    (-60.96, -124.952, 6.35),
    (-39.37, -110.585, 6.35),
    (-17.78, -104.632, 6.35),
    (-39.37, -98.679, 6.35),
    (-60.96, -104.632, 6.35),
    (-60.881, -179.308, 6.35),
    (-39.37, -90.265, 6.35),
    (-17.78, -84.312, 6.35),
    (-39.37, -78.359, 6.35),
    (-60.96, -84.312, 6.35),
    (-17.78, -78.359, 4.877),
    (-17.78, -90.265, 4.877),
    (-60.96, -78.359, 4.877),
    (-60.96, -90.265, 4.877),
    (-17.78, -98.679, 4.877),
    (-17.78, -110.585, 4.877),
    (-60.96, -98.679, 4.877),
    (-60.96, -110.585, 4.877),
    (-17.78, -118.999, 4.877),
    (-17.78, -130.905, 4.877),
    (-60.96, -118.999, 4.877),
    (-60.96, -130.905, 4.877),
    (-17.78, -139.319, 4.877),
    (-17.78, -151.225, 4.877),
    (-60.96, -139.319, 4.877),
    (-60.96, -151.225, 4.877),
    (-60.96, -159.639, 4.877),
    (-17.78, -159.639, 4.877),
    (-60.96, -171.545, 4.877),
    (-17.78, -171.545, 4.877),
    (-20.479, -71.866, 1.702),
    (-16.51, -71.866, 1.702),
    (-16.51, -178.038, 1.702),
    (-20.479, -178.038, 1.702),
    (-25.241, -178.038, 1.702),
    (-53.499, -178.038, 1.702),
    (-58.261, -178.038, 1.702),
    (-62.23, -178.038, 1.702),
    (-62.23, -71.866, 1.702),
    (-58.261, -71.866, 1.702),
    (-53.499, -71.866, 1.702),
    (-25.241, -71.866, 1.702),
    (-53.499, -155.432, 3.404),
    (-20.479, -155.432, 3.404),
    (-20.479, -135.112, 3.404),
    (-53.499, -135.112, 3.404),
    (-53.499, -114.792, 3.404),
    (-20.479, -114.792, 3.404),
    (-20.479, -94.472, 3.404),
    (-53.499, -94.472, 3.404),
    (-39.37, -98.679, 3.404),
    (-17.78, -104.632, 3.404),
    (-39.37, -110.585, 3.404),
    (-60.96, -104.632, 3.404),
    (-39.37, -78.359, 3.404),
    (-17.78, -84.312, 3.404),
    (-39.37, -90.265, 3.404),
    (-60.96, -84.312, 3.404),
    (-39.37, -118.999, 3.404),
    (-17.78, -124.952, 3.404),
    (-39.37, -130.905, 3.404),
    (-60.96, -124.952, 3.404),
    (-39.37, -139.319, 3.404),
    (-17.78, -145.272, 3.404),
    (-39.37, -151.225, 3.404),
    (-60.96, -145.272, 3.404),
    (-60.96, -165.592, 3.404),
    (-39.37, -159.639, 3.404),
    (-17.78, -165.592, 3.404),
    (-39.37, -171.545, 3.404),
    (-22.86, -75.365, 3.404),
    (-25.241, -72.425, 3.404),
    (-39.37, -71.866, 3.404),
    (-53.499, -72.425, 3.404),
    (-55.88, -75.365, 3.404),
    (-58.261, -72.425, 3.404),
    (-60.246, -71.866, 3.404),
    (-62.23, -124.952, 3.404),
    (-60.246, -178.038, 3.404),
    (-58.261, -177.479, 3.404),
    (-55.88, -174.539, 3.404),
    (-53.499, -177.479, 3.404),
    (-39.37, -178.038, 3.404),
    (-25.241, -177.479, 3.404),
    (-22.86, -174.539, 3.404),
    (-20.479, -177.479, 3.404),
    (-18.494, -178.038, 3.404),
    (-16.51, -124.952, 3.404),
    (-18.494, -71.866, 3.404),
    (-20.479, -72.425, 3.404),
    (-58.261, -94.472, 6.35),
    (-15.24, -124.952, 6.35),
    (-58.261, -114.792, 6.35),
    (-58.261, -135.112, 6.35),
    (-58.261, -155.432, 6.35),
    (-55.88, -174.539, 6.35),
    (-22.86, -174.539, 6.35),
    (-25.241, -155.432, 6.35),
    (-25.241, -135.112, 6.35),
]))
fillet.Radius = Q("0.02 in")

# Sketch on XY plane
sketch6 = body.newObject("Sketcher::SketchObject", "Sketch005")
sketch6.AttachmentSupport = (doc.getObject("XY_Plane"), [""])
sketch6.MapMode = "FlatFace"
sketch6.addGeometry([
    Part.LineSegment(V(-20, -88, 0), V(-20, -162, 0)),
    Part.LineSegment(V(-20, -162, 0), V(-60, -162, 0)),
    Part.LineSegment(V(-60, -162, 0), V(-60, -88, 0)),
    Part.LineSegment(V(-60, -88, 0), V(-20, -88, 0)),
], False)
sketch6.addConstraint([
    Sketcher.Constraint("Coincident", 0, 2, 1, 1),
    Sketcher.Constraint("Coincident", 1, 2, 2, 1),
    Sketcher.Constraint("Coincident", 2, 2, 3, 1),
    Sketcher.Constraint("Coincident", 3, 2, 0, 1),
    Sketcher.Constraint("Vertical", 0),
    Sketcher.Constraint("Horizontal", 1),
    Sketcher.Constraint("Vertical", 2),
    Sketcher.Constraint("Horizontal", 3),
    Sketcher.Constraint("DistanceX", 1, 2, 1, 1, 39.92618),
    Sketcher.Constraint("DistanceY", 0, 2, 0, 1, 73.723341),
    Sketcher.Constraint("DistanceY", 0, 2, -1, 1, 161.918782),
    Sketcher.Constraint("DistanceX", 0, 2, -1, 1, 19.581574),
])
pocket4 = body.newObject("PartDesign::Pocket", "Pocket003")
pocket4.Profile = sketch6
pocket4.Length = Q("0.1 in")
pocket4.Reversed = True

doc.recompute()
